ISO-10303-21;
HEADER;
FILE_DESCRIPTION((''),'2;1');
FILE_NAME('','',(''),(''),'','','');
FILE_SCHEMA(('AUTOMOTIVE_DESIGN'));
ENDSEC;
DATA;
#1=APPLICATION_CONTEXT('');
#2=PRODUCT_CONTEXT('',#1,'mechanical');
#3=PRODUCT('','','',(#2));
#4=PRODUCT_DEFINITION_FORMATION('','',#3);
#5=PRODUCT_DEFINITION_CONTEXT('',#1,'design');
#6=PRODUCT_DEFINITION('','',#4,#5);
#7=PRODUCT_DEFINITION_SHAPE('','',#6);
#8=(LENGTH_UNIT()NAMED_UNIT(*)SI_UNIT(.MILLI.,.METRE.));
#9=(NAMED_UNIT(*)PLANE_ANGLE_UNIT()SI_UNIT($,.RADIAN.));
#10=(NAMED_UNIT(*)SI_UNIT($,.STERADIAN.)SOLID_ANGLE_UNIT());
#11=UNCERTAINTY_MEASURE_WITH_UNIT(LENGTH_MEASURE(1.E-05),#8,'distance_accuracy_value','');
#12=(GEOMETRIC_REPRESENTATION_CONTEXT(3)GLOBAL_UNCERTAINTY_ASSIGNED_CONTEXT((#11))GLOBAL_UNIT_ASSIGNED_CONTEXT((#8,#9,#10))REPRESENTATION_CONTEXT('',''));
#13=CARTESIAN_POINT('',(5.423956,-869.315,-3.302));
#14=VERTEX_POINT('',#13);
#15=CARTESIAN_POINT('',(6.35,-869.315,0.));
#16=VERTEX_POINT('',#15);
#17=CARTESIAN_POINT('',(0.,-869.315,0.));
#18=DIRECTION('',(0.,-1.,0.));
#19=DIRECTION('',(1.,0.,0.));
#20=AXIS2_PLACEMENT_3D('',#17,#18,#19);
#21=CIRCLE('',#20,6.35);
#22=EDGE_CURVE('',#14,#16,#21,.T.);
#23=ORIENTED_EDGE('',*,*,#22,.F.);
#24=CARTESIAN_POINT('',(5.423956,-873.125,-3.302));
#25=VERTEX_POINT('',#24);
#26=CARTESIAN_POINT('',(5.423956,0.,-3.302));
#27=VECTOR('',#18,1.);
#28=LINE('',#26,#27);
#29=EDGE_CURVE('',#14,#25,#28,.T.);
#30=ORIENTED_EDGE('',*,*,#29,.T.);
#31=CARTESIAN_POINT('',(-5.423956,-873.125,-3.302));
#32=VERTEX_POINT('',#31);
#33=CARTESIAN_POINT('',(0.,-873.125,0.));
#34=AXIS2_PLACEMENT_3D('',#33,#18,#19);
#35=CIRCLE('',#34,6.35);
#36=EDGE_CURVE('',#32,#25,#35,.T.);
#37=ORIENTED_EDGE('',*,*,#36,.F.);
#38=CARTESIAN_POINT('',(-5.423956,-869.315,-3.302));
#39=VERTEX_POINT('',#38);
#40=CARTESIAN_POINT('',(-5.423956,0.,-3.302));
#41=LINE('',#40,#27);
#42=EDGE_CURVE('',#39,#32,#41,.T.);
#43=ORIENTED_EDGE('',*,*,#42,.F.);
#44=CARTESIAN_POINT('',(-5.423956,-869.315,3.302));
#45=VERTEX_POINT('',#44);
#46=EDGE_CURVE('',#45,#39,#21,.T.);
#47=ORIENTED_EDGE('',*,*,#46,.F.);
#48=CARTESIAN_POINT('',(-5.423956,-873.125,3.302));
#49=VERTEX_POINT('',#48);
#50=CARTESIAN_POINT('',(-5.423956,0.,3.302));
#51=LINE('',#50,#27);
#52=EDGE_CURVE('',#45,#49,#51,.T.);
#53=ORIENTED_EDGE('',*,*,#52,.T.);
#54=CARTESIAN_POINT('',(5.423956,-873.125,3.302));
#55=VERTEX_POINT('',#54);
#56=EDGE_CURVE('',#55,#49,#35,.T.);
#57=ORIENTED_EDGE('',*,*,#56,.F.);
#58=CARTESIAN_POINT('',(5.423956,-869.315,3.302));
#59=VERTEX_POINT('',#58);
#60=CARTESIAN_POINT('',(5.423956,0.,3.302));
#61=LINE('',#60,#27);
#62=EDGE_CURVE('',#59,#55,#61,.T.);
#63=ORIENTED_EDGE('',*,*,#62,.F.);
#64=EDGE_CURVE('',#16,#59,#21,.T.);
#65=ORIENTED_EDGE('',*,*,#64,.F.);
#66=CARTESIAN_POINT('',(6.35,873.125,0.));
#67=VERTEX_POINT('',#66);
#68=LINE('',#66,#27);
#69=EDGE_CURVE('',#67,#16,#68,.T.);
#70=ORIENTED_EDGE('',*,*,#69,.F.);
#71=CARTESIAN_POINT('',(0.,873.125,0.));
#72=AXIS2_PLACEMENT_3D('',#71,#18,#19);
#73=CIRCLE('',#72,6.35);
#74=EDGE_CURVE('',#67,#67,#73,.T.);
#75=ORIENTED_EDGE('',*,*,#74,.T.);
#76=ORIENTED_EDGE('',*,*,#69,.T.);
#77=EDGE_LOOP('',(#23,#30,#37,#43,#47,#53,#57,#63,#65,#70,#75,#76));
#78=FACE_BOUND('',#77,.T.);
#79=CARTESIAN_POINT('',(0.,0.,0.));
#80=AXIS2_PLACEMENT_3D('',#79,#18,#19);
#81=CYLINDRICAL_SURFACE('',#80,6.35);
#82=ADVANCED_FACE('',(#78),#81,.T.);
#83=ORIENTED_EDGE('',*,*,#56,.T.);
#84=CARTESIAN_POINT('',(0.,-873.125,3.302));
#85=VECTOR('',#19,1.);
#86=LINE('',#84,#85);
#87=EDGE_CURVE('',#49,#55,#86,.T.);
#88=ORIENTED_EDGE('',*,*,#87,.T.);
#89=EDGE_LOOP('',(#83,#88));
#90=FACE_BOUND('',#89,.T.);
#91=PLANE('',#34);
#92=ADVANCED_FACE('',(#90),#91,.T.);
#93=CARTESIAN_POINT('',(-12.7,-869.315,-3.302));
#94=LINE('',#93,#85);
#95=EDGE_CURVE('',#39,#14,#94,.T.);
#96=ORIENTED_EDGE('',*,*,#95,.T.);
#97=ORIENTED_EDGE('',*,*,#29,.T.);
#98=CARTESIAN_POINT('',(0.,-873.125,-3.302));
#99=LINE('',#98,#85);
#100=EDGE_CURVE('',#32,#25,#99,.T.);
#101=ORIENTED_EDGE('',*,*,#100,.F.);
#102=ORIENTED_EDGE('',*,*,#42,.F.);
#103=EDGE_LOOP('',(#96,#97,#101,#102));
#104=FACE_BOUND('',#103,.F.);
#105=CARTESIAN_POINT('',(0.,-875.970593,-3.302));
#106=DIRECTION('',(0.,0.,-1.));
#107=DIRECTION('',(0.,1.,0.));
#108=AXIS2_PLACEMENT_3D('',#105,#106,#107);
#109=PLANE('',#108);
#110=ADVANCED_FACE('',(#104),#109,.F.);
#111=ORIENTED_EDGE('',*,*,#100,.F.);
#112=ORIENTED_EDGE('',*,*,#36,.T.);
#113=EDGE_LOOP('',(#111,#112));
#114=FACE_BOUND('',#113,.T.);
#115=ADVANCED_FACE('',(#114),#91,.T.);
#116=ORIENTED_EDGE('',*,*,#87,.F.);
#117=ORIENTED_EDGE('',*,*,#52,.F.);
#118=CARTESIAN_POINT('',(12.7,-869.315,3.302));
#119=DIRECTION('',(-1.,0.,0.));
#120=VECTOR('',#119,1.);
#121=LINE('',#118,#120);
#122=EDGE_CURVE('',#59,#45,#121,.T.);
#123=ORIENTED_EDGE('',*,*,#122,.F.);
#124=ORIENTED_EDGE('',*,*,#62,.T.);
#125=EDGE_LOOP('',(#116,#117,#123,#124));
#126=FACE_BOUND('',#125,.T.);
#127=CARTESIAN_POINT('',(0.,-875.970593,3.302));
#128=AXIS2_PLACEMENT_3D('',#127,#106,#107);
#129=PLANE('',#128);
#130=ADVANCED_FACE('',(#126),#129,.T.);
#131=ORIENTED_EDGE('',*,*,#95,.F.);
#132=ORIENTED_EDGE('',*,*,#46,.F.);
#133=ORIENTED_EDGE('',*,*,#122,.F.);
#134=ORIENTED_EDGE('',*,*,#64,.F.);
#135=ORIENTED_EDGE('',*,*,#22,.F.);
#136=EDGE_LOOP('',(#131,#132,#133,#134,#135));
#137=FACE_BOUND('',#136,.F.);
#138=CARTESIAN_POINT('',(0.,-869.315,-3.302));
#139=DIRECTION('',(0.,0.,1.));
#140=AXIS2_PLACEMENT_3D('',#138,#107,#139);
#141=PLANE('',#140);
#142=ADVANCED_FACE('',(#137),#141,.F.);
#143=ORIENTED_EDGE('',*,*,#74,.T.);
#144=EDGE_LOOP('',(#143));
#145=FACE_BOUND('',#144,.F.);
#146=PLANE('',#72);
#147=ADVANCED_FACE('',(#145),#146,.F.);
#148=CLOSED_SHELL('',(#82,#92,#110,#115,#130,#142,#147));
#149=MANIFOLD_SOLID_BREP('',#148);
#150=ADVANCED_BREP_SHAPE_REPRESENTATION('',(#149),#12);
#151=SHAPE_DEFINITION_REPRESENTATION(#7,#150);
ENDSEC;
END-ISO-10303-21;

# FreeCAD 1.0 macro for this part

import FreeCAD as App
import Part
import Sketcher

V = App.Vector
Q = App.Units.Quantity


def add_polygon(sketch, points):
    """Adds a closed chain of lines whose ends are joined by coincident constraints."""
    first, n = sketch.GeometryCount, len(points)
    for a, b in zip(points, points[1:] + points[:1]):
        sketch.addGeometry(Part.LineSegment(App.Vector(*a, 0), App.Vector(*b, 0)), False)
    for i in range(n):
        sketch.addConstraint(Sketcher.Constraint("Coincident", first + i, 2, first + (i + 1) % n, 1))

doc = App.newDocument("Part")
params = doc.addObject("Spreadsheet::Sheet", "Params")
for row, (alias, value) in enumerate([
    ("sketch1_diameter", "0.5 in"),
    ("pad1_length", "68.75 in"),
    ("sketch2_height", "0.26 in"),
    ("pocket1_length", "1 in"),
], start=1):
    params.set(f"A{row}", alias)
    params.set(f"B{row}", "=" + value)
    params.setAlias(f"B{row}", alias)

body = doc.addObject("PartDesign::Body", "Body")

# Sketch on XZ plane
sketch1 = body.newObject("Sketcher::SketchObject", "Sketch")
sketch1.AttachmentSupport = (doc.getObject("XZ_Plane"), [""])
sketch1.MapMode = "FlatFace"
sketch1.addGeometry(Part.Circle(V(0, 0, 0), V(0, 0, 1), 6.35), False)
sketch1.addConstraint(Sketcher.Constraint("Coincident", 0, 3, -1, 1))
sketch1.addConstraint(Sketcher.Constraint("Diameter", 0, Q("0.5 in")))
sketch1.setExpression("Constraints[1]", "Params.sketch1_diameter")
pad1 = body.newObject("PartDesign::Pad", "Pad")
pad1.Profile = sketch1
pad1.setExpression("Length", "Params.pad1_length")
pad1.Midplane = True

# Sketch on YZ plane
sketch2 = body.newObject("Sketcher::SketchObject", "Sketch001")
sketch2.AttachmentSupport = (doc.getObject("YZ_Plane"), [""])
sketch2.MapMode = "FlatFace"
add_polygon(sketch2, [(-875.970593, 3.302), (-875.970593, -3.302), (-869.315, -3.302), (-869.315, 3.302)])  # lines 0-3
sketch2.addConstraint(Sketcher.Constraint("Vertical", 0))
sketch2.addConstraint(Sketcher.Constraint("Horizontal", 1))
sketch2.addConstraint(Sketcher.Constraint("Vertical", 2))
sketch2.addConstraint(Sketcher.Constraint("Horizontal", 3))
sketch2.addConstraint(Sketcher.Constraint("DistanceY", 0, 2, 0, 1, Q("0.26 in")))
sketch2.addConstraint(Sketcher.Constraint("DistanceY", 0, 2, -1, 1, Q("0.13 in")))
sketch2.addConstraint(Sketcher.Constraint("DistanceX", 1, 2, -1, 1, Q("34.225 in")))
sketch2.addConstraint(Sketcher.Constraint("DistanceX", 1, 1, 1, 2, Q("6.655593 mm")))
sketch2.setExpression("Constraints[8]", "Params.sketch2_height")
pocket1 = body.newObject("PartDesign::Pocket", "Pocket")
pocket1.Profile = sketch2
pocket1.setExpression("Length", "Params.pocket1_length")
pocket1.Midplane = True

doc.recompute()
